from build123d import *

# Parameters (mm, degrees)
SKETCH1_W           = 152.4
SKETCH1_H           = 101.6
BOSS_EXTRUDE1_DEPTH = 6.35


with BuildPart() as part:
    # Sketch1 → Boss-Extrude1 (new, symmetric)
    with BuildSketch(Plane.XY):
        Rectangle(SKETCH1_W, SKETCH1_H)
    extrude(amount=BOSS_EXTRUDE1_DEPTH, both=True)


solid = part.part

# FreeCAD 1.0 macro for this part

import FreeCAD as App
import Part
import Sketcher
from FreeCAD import Vector
Q = App.Units.Quantity


def add_polygon(sketch, points):
    """Adds a closed chain of lines whose ends are joined by coincident constraints."""
    first, n = sketch.GeometryCount, len(points)
    for a, b in zip(points, points[1:] + points[:1]):
        sketch.addGeometry(Part.LineSegment(App.Vector(*a, 0), App.Vector(*b, 0)), False)
    for i in range(n):
        sketch.addConstraint(Sketcher.Constraint("Coincident", first + i, 2, first + (i + 1) % n, 1))

doc = App.newDocument("Part")
body = doc.addObject("PartDesign::Body", "Body")

sketch1 = body.newObject("Sketcher::SketchObject", "Sketch")
sketch1.AttachmentSupport = (doc.getObject("XY_Plane"), [""])
sketch1.MapMode = "FlatFace"
add_polygon(sketch1, [(-76.2, 50.8), (-76.2, -50.8), (76.2, -50.8), (76.2, 50.8)])
sketch1.addConstraint([
    Sketcher.Constraint("Vertical", 0),
    Sketcher.Constraint("Horizontal", 1),
    Sketcher.Constraint("Vertical", 2),
    Sketcher.Constraint("Horizontal", 3),
    Sketcher.Constraint("Symmetric", 0, 2, 2, 2, -1, 1),
    Sketcher.Constraint("DistanceX", 1, 1, 1, 2, Q("6 in")),
    Sketcher.Constraint("DistanceY", 0, 2, 0, 1, Q("4 in")),
])
pad1 = body.newObject("PartDesign::Pad", "Pad")
pad1.Profile = sketch1
pad1.Length = Q("0.5 in")
pad1.Midplane = True

doc.recompute()
